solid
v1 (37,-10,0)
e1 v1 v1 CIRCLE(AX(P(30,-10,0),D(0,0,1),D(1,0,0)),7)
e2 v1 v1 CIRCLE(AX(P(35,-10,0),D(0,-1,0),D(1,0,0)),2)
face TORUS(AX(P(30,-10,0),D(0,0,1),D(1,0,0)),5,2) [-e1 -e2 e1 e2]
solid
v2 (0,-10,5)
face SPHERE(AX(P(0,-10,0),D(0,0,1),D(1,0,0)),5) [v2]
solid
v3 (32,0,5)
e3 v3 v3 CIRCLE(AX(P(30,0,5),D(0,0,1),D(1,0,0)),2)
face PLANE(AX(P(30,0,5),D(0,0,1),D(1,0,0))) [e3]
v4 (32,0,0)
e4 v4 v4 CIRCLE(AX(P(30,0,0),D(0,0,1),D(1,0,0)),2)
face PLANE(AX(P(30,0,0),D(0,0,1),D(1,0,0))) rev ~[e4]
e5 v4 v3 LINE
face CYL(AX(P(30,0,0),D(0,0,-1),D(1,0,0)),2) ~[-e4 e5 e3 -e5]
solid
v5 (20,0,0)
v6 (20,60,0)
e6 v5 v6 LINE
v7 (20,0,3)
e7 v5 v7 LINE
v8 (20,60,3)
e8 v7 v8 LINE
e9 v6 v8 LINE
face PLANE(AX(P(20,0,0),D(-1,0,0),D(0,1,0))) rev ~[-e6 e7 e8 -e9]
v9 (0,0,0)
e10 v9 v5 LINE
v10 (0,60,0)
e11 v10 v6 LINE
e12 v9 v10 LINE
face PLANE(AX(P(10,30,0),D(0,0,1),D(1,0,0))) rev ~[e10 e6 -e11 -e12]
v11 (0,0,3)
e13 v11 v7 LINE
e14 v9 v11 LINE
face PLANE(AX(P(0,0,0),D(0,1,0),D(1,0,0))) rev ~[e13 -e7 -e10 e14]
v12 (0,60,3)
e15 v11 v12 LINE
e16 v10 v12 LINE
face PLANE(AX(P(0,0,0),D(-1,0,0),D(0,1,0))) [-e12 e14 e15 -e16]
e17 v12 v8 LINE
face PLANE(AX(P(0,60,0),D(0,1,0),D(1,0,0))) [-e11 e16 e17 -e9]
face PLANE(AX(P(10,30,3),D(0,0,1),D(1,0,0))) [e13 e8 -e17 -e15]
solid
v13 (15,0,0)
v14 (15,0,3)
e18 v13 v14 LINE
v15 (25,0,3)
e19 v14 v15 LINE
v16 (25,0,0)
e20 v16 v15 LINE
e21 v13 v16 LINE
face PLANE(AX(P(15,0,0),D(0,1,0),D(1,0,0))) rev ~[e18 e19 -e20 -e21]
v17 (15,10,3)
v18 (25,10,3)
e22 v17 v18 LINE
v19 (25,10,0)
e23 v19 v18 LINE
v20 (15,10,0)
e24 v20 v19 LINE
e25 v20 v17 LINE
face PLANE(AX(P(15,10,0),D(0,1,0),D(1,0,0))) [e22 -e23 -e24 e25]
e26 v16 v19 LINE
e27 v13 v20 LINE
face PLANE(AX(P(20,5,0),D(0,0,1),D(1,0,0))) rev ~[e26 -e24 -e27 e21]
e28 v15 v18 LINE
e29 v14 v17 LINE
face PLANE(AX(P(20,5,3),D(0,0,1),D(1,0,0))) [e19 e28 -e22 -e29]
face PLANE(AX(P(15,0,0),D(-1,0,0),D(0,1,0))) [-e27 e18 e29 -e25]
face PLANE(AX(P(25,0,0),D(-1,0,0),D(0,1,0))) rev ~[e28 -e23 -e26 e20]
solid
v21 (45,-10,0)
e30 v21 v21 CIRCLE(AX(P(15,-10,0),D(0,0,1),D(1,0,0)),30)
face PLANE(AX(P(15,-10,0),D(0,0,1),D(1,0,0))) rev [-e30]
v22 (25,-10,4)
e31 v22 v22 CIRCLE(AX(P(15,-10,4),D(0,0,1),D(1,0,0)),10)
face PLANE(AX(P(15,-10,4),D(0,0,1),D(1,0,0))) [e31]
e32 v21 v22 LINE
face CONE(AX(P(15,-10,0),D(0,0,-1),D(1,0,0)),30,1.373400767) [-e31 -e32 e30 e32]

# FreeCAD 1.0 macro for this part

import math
import FreeCAD as App
import Part
import Sketcher
from FreeCAD import Vector

doc = App.newDocument("Part")
body = doc.addObject("PartDesign::Body", "Body")

# Sketch on XY plane
sketch1 = doc.addObject("Sketcher::SketchObject", "Sketch")
body.addObject(sketch1)
sketch1.AttachmentSupport = (doc.XY_Plane, [""])
sketch1.MapMode = "FlatFace"
sketch1.addGeometry(Part.LineSegment(Vector(15, 10, 0), Vector(15, 0, 0)), False)
sketch1.addGeometry(Part.LineSegment(Vector(15, 0, 0), Vector(25, 0, 0)), False)
sketch1.addGeometry(Part.LineSegment(Vector(25, 0, 0), Vector(25, 10, 0)), False)
sketch1.addGeometry(Part.LineSegment(Vector(25, 10, 0), Vector(15, 10, 0)), False)
sketch1.addConstraint(Sketcher.Constraint("Coincident", 0, 2, 1, 1))
sketch1.addConstraint(Sketcher.Constraint("Coincident", 1, 2, 2, 1))
sketch1.addConstraint(Sketcher.Constraint("Coincident", 2, 2, 3, 1))
sketch1.addConstraint(Sketcher.Constraint("Coincident", 3, 2, 0, 1))
sketch1.addConstraint(Sketcher.Constraint("Vertical", 0))
sketch1.addConstraint(Sketcher.Constraint("Horizontal", 1))
sketch1.addConstraint(Sketcher.Constraint("Vertical", 2))
sketch1.addConstraint(Sketcher.Constraint("Horizontal", 3))
sketch1.addConstraint(Sketcher.Constraint("PointOnObject", 0, 2, -1))
sketch1.addConstraint(Sketcher.Constraint("Equal", 3, 0))
sketch1.addConstraint(Sketcher.Constraint("DistanceX", 1, 1, 1, 2, 10.0))
sketch1.addConstraint(Sketcher.Constraint("DistanceX", -1, 1, 0, 2, 15.0))
pad1 = doc.addObject("PartDesign::Pad", "Pad")
body.addObject(pad1)
pad1.Profile = sketch1
pad1.Length = 3
body2 = doc.addObject("PartDesign::Body", "Body001")

# Sketch on XY plane
sketch2 = doc.addObject("Sketcher::SketchObject", "Sketch001")
body2.addObject(sketch2)
sketch2.AttachmentSupport = (doc.getObject("XY_Plane001"), [""])
sketch2.MapMode = "FlatFace"
sketch2.addGeometry(Part.LineSegment(Vector(0, 60, 0), Vector(0, 0, 0)), False)
sketch2.addGeometry(Part.LineSegment(Vector(0, 0, 0), Vector(20, 0, 0)), False)
sketch2.addGeometry(Part.LineSegment(Vector(20, 0, 0), Vector(20, 60, 0)), False)
sketch2.addGeometry(Part.LineSegment(Vector(20, 60, 0), Vector(0, 60, 0)), False)
sketch2.addConstraint(Sketcher.Constraint("Coincident", 0, 2, 1, 1))
sketch2.addConstraint(Sketcher.Constraint("Coincident", 1, 2, 2, 1))
sketch2.addConstraint(Sketcher.Constraint("Coincident", 2, 2, 3, 1))
sketch2.addConstraint(Sketcher.Constraint("Coincident", 3, 2, 0, 1))
sketch2.addConstraint(Sketcher.Constraint("Vertical", 0))
sketch2.addConstraint(Sketcher.Constraint("Horizontal", 1))
sketch2.addConstraint(Sketcher.Constraint("Vertical", 2))
sketch2.addConstraint(Sketcher.Constraint("Horizontal", 3))
sketch2.addConstraint(Sketcher.Constraint("Coincident", 0, 2, -1, 1))
sketch2.addConstraint(Sketcher.Constraint("DistanceX", 1, 1, 1, 2, 20.0))
sketch2.addConstraint(Sketcher.Constraint("DistanceY", 0, 2, 0, 1, 60.0))
pad2 = doc.addObject("PartDesign::Pad", "Pad001")
body2.addObject(pad2)
pad2.Profile = sketch2
pad2.Length = 3
body3 = doc.addObject("PartDesign::Body", "Body002")

# Sketch on XY plane
sketch3 = doc.addObject("Sketcher::SketchObject", "Sketch002")
body3.addObject(sketch3)
sketch3.AttachmentSupport = (doc.getObject("XY_Plane002"), [""])
sketch3.MapMode = "FlatFace"
sketch3.addGeometry(Part.Circle(Vector(30, 0, 0), Vector(0, 0, 1), 2), False)
sketch3.addConstraint(Sketcher.Constraint("PointOnObject", 0, 3, -1))
sketch3.addConstraint(Sketcher.Constraint("Diameter", 0, 4.0))
sketch3.addConstraint(Sketcher.Constraint("DistanceX", -1, 1, 0, 3, 30.0))
pad3 = doc.addObject("PartDesign::Pad", "Pad002")
body3.addObject(pad3)
pad3.Profile = sketch3
pad3.Length = 5
body4 = doc.addObject("PartDesign::Body", "Body003")

# Sketch on XZ plane
sketch4 = doc.addObject("Sketcher::SketchObject", "Sketch003")
body4.addObject(sketch4)
sketch4.AttachmentSupport = (doc.getObject("XZ_Plane003"), [""])
sketch4.MapMode = "FlatFace"
sketch4.AttachmentOffset = App.Placement(Vector(0, 0, 10), App.Rotation())
sketch4.addGeometry(Part.ArcOfCircle(Part.Circle(Vector(0, 0, 0), Vector(0, 0, 1), 5), math.radians(-90), math.radians(90)), False)
sketch4.addGeometry(Part.LineSegment(Vector(0, 5, 0), Vector(0, -5, 0)), False)
sketch4.addConstraint(Sketcher.Constraint("Coincident", 0, 1, 1, 2))
sketch4.addConstraint(Sketcher.Constraint("Coincident", 1, 1, 0, 2))
sketch4.addConstraint(Sketcher.Constraint("Vertical", 1))
sketch4.addConstraint(Sketcher.Constraint("Coincident", 0, 3, -1, 1))
sketch4.addConstraint(Sketcher.Constraint("PointOnObject", 0, 1, -2))
sketch4.addConstraint(Sketcher.Constraint("Radius", 0, 5.0))
revolution = doc.addObject("PartDesign::Revolution", "Revolution")
body4.addObject(revolution)
revolution.Profile = sketch4
revolution.ReferenceAxis = (sketch4, ["V_Axis"])
revolution.Angle = 360
body5 = doc.addObject("PartDesign::Body", "Body004")

# Sketch on XZ plane
sketch5 = doc.addObject("Sketcher::SketchObject", "Sketch004")
body5.addObject(sketch5)
sketch5.AttachmentSupport = (doc.getObject("XZ_Plane004"), [""])
sketch5.MapMode = "FlatFace"
sketch5.AttachmentOffset = App.Placement(Vector(0, 0, 10), App.Rotation())
sketch5.addGeometry(Part.LineSegment(Vector(15, 0, 0), Vector(45, 0, 0)), False)
sketch5.addGeometry(Part.LineSegment(Vector(45, 0, 0), Vector(25, 4, 0)), False)
sketch5.addGeometry(Part.LineSegment(Vector(25, 4, 0), Vector(15, 4, 0)), False)
sketch5.addGeometry(Part.LineSegment(Vector(15, 4, 0), Vector(15, 0, 0)), False)
sketch5.addGeometry(Part.LineSegment(Vector(15, 0, 0), Vector(15, 4, 0)), True)  # axis
sketch5.addConstraint(Sketcher.Constraint("Coincident", 0, 2, 1, 1))
sketch5.addConstraint(Sketcher.Constraint("Coincident", 1, 2, 2, 1))
sketch5.addConstraint(Sketcher.Constraint("Coincident", 2, 2, 3, 1))
sketch5.addConstraint(Sketcher.Constraint("Coincident", 3, 2, 0, 1))
sketch5.addConstraint(Sketcher.Constraint("Horizontal", 0))
sketch5.addConstraint(Sketcher.Constraint("Horizontal", 2))
sketch5.addConstraint(Sketcher.Constraint("Vertical", 3))
sketch5.addConstraint(Sketcher.Constraint("Vertical", 4))
sketch5.addConstraint(Sketcher.Constraint("Coincident", 4, 1, 3, 2))
sketch5.addConstraint(Sketcher.Constraint("PointOnObject", 0, 2, -1))
sketch5.addConstraint(Sketcher.Constraint("Horizontal", 1, 2, 4, 2))
sketch5.addConstraint(Sketcher.Constraint("DistanceX", 0, 1, 0, 2, 30.0))
sketch5.addConstraint(Sketcher.Constraint("DistanceX", 2, 2, 2, 1, 10.0))
sketch5.addConstraint(Sketcher.Constraint("DistanceY", 3, 2, 3, 1, 4.0))
sketch5.addConstraint(Sketcher.Constraint("DistanceX", -1, 1, 0, 2, 45.0))
revolution2 = doc.addObject("PartDesign::Revolution", "Revolution001")
body5.addObject(revolution2)
revolution2.Profile = sketch5
revolution2.ReferenceAxis = (sketch5, ["Axis0"])
revolution2.Angle = 360
body6 = doc.addObject("PartDesign::Body", "Body005")

# Sketch on XZ plane
sketch6 = doc.addObject("Sketcher::SketchObject", "Sketch005")
body6.addObject(sketch6)
sketch6.AttachmentSupport = (doc.getObject("XZ_Plane005"), [""])
sketch6.MapMode = "FlatFace"
sketch6.AttachmentOffset = App.Placement(Vector(0, 0, 10), App.Rotation())
sketch6.addGeometry(Part.Circle(Vector(35, 0, 0), Vector(0, 0, 1), 2), False)
sketch6.addGeometry(Part.LineSegment(Vector(30, 0, 0), Vector(30, 10, 0)), True)  # axis
sketch6.addConstraint(Sketcher.Constraint("Vertical", 1))
sketch6.addConstraint(Sketcher.Constraint("PointOnObject", 0, 3, -1))
sketch6.addConstraint(Sketcher.Constraint("PointOnObject", 1, 1, -1))
sketch6.addConstraint(Sketcher.Constraint("Diameter", 0, 4.0))
sketch6.addConstraint(Sketcher.Constraint("DistanceY", 1, 1, 1, 2, 10.0))
sketch6.addConstraint(Sketcher.Constraint("DistanceX", -1, 1, 0, 3, 35.0))
sketch6.addConstraint(Sketcher.Constraint("DistanceX", -1, 1, 1, 1, 30.0))
revolution3 = doc.addObject("PartDesign::Revolution", "Revolution002")
body6.addObject(revolution3)
revolution3.Profile = sketch6
revolution3.ReferenceAxis = (sketch6, ["Axis0"])
revolution3.Angle = 360

doc.recompute()
